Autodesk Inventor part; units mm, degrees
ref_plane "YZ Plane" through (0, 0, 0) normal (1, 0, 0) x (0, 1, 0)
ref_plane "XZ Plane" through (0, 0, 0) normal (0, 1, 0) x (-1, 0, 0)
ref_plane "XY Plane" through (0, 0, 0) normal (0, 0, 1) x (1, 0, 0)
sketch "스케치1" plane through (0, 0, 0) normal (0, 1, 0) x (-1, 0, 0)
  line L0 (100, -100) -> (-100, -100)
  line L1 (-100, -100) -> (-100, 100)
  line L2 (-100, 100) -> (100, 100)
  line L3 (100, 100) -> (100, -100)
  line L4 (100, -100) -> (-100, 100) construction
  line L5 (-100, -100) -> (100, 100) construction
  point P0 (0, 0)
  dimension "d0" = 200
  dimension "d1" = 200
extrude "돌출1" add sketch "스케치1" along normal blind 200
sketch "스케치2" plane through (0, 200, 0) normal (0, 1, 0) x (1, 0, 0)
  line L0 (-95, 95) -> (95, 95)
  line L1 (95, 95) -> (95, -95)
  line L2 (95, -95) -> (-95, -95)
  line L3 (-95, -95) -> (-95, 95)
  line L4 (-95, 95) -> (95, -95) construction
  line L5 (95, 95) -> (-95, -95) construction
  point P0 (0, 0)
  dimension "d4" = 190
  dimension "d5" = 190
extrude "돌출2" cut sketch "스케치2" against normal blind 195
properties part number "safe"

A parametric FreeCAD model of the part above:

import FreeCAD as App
import Part
import Sketcher
Q = App.Units.Quantity


def add_polygon(sketch, points):
    """Adds a closed chain of lines whose ends are joined by coincident constraints."""
    first, n = sketch.GeometryCount, len(points)
    for a, b in zip(points, points[1:] + points[:1]):
        sketch.addGeometry(Part.LineSegment(App.Vector(*a, 0), App.Vector(*b, 0)), False)
    for i in range(n):
        sketch.addConstraint(Sketcher.Constraint("Coincident", first + i, 2, first + (i + 1) % n, 1))

doc = App.newDocument("Part")
body = doc.addObject("PartDesign::Body", "Body")

# Sketch on XZ plane
sketch1 = doc.addObject("Sketcher::SketchObject", "Sketch")
body.addObject(sketch1)
sketch1.AttachmentSupport = (doc.XZ_Plane, [""])
sketch1.MapMode = "FlatFace"
add_polygon(sketch1, [(100, -100), (-100, -100), (-100, 100), (100, 100)])  # lines 0-3
sketch1.addConstraint([
    Sketcher.Constraint("Horizontal", 0),
    Sketcher.Constraint("Vertical", 1),
    Sketcher.Constraint("Horizontal", 2),
    Sketcher.Constraint("Vertical", 3),
    Sketcher.Constraint("Symmetric", 0, 2, 2, 2, -1, 1),
    Sketcher.Constraint("Equal", 2, 1),
    Sketcher.Constraint("DistanceX", 0, 2, 0, 1, Q("200 mm")),
])
pad1 = doc.addObject("PartDesign::Pad", "Pad")
body.addObject(pad1)
pad1.Profile = sketch1
pad1.Length = 200
pad1.Reversed = True

# Sketch on XZ plane
sketch2 = doc.addObject("Sketcher::SketchObject", "Sketch001")
body.addObject(sketch2)
sketch2.AttachmentSupport = (doc.XZ_Plane, [""])
sketch2.MapMode = "FlatFace"
sketch2.AttachmentOffset = App.Placement(App.Vector(0, 0, -200), App.Rotation())
add_polygon(sketch2, [(95, -95), (-95, -95), (-95, 95), (95, 95)])  # lines 0-3
sketch2.addConstraint([
    Sketcher.Constraint("Horizontal", 0),
    Sketcher.Constraint("Vertical", 1),
    Sketcher.Constraint("Horizontal", 2),
    Sketcher.Constraint("Vertical", 3),
    Sketcher.Constraint("Symmetric", 0, 2, 2, 2, -1, 1),
    Sketcher.Constraint("Equal", 2, 1),
    Sketcher.Constraint("DistanceX", 0, 2, 0, 1, Q("190 mm")),
])
pocket1 = doc.addObject("PartDesign::Pocket", "Pocket")
body.addObject(pocket1)
pocket1.Profile = sketch2
pocket1.Length = 195
pocket1.Reversed = True

doc.recompute()
